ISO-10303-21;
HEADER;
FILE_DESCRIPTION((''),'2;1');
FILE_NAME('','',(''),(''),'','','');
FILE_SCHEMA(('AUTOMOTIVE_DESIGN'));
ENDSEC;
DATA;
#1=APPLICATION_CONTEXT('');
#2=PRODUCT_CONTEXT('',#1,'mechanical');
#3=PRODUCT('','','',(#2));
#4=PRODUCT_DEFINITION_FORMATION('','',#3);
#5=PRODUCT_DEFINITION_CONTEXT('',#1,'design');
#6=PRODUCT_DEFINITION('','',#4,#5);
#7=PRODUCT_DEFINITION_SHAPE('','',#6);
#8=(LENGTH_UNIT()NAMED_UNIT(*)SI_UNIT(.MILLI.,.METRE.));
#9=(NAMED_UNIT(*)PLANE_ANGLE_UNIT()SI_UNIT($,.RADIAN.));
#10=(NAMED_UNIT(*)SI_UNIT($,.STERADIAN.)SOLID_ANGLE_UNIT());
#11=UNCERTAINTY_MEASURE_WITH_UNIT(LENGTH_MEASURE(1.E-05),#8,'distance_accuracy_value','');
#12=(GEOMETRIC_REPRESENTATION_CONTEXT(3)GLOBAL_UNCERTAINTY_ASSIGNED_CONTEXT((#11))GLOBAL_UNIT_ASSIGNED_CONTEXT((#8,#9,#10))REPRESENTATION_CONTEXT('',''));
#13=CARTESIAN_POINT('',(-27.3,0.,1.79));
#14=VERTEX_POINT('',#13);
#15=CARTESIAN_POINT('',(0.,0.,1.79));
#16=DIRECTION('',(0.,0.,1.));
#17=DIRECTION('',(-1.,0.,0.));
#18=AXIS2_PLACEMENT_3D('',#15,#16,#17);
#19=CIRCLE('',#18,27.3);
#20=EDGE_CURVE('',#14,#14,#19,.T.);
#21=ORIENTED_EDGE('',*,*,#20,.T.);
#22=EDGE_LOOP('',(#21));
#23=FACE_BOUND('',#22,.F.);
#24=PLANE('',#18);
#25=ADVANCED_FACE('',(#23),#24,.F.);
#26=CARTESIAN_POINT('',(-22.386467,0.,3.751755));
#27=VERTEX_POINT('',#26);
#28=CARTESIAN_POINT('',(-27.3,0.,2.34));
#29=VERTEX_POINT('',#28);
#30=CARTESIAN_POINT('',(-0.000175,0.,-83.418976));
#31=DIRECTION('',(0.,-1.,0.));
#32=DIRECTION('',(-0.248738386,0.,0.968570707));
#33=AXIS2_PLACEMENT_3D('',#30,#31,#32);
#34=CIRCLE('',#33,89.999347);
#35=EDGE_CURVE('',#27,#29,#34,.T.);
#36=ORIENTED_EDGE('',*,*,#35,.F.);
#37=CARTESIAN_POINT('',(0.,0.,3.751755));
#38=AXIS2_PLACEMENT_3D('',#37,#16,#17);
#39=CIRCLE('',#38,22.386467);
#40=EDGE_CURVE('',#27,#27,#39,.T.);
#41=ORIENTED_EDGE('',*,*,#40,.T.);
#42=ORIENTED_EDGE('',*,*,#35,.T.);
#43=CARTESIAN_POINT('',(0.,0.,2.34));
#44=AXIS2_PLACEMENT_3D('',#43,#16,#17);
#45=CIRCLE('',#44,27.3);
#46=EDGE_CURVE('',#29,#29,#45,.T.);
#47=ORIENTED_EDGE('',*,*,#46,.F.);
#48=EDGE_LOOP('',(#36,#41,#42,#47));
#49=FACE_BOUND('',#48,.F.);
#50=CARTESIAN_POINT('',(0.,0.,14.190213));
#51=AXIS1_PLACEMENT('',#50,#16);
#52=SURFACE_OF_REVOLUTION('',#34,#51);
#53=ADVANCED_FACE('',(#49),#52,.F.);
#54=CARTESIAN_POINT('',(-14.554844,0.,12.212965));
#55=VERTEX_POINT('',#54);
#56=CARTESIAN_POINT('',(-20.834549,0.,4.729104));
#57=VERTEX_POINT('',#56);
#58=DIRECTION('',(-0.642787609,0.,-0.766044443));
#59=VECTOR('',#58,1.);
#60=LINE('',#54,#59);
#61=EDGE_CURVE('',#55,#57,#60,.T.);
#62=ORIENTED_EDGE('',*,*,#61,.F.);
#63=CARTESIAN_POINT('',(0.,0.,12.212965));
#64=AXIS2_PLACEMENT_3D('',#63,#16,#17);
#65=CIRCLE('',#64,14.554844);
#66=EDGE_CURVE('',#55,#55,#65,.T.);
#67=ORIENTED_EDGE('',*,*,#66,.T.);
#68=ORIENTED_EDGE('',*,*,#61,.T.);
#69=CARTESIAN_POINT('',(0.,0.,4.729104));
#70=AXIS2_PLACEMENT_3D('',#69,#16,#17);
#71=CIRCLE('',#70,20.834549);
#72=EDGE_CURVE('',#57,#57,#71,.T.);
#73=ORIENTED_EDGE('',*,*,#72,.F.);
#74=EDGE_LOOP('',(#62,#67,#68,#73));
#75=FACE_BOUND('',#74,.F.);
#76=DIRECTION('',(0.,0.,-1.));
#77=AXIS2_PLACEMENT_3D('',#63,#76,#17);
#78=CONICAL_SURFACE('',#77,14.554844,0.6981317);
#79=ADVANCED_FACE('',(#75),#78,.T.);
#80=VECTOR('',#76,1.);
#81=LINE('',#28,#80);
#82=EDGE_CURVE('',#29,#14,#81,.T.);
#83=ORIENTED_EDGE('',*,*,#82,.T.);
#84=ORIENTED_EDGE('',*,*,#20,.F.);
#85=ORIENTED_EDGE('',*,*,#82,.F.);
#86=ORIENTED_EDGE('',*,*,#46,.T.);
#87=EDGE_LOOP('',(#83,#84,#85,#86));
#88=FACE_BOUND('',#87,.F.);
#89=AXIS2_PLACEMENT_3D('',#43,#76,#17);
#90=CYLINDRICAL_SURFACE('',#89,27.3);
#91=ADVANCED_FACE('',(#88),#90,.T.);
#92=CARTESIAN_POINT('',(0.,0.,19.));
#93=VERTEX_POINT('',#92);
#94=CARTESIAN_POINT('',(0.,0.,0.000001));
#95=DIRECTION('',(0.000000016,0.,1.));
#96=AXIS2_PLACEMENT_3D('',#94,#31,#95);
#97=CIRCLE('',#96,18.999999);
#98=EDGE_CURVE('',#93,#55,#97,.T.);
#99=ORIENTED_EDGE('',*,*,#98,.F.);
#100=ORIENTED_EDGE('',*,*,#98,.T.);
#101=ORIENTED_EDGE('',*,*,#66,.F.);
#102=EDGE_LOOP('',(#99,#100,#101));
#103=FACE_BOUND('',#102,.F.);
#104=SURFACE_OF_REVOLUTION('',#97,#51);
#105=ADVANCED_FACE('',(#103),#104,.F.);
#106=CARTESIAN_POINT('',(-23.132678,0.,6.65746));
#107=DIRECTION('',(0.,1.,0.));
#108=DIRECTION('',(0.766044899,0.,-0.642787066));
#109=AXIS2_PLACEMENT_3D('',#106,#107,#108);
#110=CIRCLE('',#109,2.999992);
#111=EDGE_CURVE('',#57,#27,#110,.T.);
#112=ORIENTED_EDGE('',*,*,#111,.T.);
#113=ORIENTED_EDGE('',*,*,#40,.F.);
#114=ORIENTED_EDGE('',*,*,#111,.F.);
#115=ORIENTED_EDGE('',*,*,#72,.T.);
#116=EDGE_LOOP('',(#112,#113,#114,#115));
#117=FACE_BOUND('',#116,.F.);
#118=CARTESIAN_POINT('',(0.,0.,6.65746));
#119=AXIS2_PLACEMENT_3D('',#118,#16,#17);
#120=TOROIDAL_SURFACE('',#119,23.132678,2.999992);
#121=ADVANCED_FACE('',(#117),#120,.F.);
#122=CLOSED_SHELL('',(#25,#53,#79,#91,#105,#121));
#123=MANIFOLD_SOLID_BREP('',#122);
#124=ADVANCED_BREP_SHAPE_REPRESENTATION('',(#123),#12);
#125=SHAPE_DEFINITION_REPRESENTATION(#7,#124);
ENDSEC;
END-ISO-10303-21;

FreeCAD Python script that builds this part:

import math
import FreeCAD as App
import Part
import Sketcher

V = App.Vector
Q = App.Units.Quantity

doc = App.newDocument("Part")
body = doc.addObject("PartDesign::Body", "Body")

# Sketch on XZ plane
sketch1 = body.newObject("Sketcher::SketchObject", "Sketch")
sketch1.AttachmentSupport = (doc.getObject("XZ_Plane"), [""])
sketch1.MapMode = "FlatFace"
sketch1.addGeometry(Part.ArcOfCircle(Part.Circle(V(0, 0.000001, 0), V(0, 0, 1), 18.999999), math.radians(89.999999), math.radians(139.999999)), False)
sketch1.addGeometry(Part.LineSegment(V(-14.554844, 12.212965, 0), V(-20.834549, 4.729104, 0)), False)
sketch1.addGeometry(Part.ArcOfCircle(Part.Circle(V(-23.132678, 6.65746, 0), V(0, 0, 1), 2.999992), math.radians(-75.597181), math.radians(-39.999959)), False)
sketch1.addGeometry(Part.ArcOfCircle(Part.Circle(V(-0.000175, -83.418976, 0), V(0, 0, 1), 89.999347), math.radians(104.402869), math.radians(107.657937)), False)
sketch1.addGeometry(Part.LineSegment(V(-27.3, 2.34, 0), V(-27.3, 1.79, 0)), False)
sketch1.addGeometry(Part.LineSegment(V(-27.3, 1.79, 0), V(0, 1.79, 0)), False)
sketch1.addGeometry(Part.LineSegment(V(0, 1.79, 0), V(0, 19, 0)), False)
sketch1.addConstraint(Sketcher.Constraint("Tangent", 0, 2, 1, 1))
sketch1.addConstraint(Sketcher.Constraint("Tangent", 1, 2, 2, 2))
sketch1.addConstraint(Sketcher.Constraint("Tangent", 2, 1, 3, 1))
sketch1.addConstraint(Sketcher.Constraint("Coincident", 3, 2, 4, 1))
sketch1.addConstraint(Sketcher.Constraint("Coincident", 4, 2, 5, 1))
sketch1.addConstraint(Sketcher.Constraint("Coincident", 5, 2, 6, 1))
sketch1.addConstraint(Sketcher.Constraint("Coincident", 6, 2, 0, 1))
sketch1.addConstraint(Sketcher.Constraint("Vertical", 4))
sketch1.addConstraint(Sketcher.Constraint("Horizontal", 5))
sketch1.addConstraint(Sketcher.Constraint("Vertical", 6))
sketch1.addConstraint(Sketcher.Constraint("Coincident", 0, 3, -1, 1))
sketch1.addConstraint(Sketcher.Constraint("PointOnObject", 5, 2, -2))
sketch1.addConstraint(Sketcher.Constraint("Radius", 0, Q("18.999999 mm")))
sketch1.addConstraint(Sketcher.Constraint("Angle", 1, Q("-130 deg")))
sketch1.addConstraint(Sketcher.Constraint("DistanceX", 5, 1, 5, 2, Q("27.3 mm")))
sketch1.addConstraint(Sketcher.Constraint("DistanceY", 4, 2, 4, 1, Q("0.55 mm")))
sketch1.addConstraint(Sketcher.Constraint("DistanceY", 6, 1, 6, 2, Q("17.21 mm")))
sketch1.addConstraint(Sketcher.Constraint("Radius", 2, Q("2.999992 mm")))
sketch1.addConstraint(Sketcher.Constraint("Radius", 3, Q("89.999347 mm")))
sketch1.addConstraint(Sketcher.Constraint("DistanceY", -1, 1, 2, 3, Q("6.65746 mm")))
revolution = body.newObject("PartDesign::Revolution", "Revolution")
revolution.Profile = sketch1
revolution.ReferenceAxis = (sketch1, ["V_Axis"])
revolution.Angle = 360

doc.recompute()
